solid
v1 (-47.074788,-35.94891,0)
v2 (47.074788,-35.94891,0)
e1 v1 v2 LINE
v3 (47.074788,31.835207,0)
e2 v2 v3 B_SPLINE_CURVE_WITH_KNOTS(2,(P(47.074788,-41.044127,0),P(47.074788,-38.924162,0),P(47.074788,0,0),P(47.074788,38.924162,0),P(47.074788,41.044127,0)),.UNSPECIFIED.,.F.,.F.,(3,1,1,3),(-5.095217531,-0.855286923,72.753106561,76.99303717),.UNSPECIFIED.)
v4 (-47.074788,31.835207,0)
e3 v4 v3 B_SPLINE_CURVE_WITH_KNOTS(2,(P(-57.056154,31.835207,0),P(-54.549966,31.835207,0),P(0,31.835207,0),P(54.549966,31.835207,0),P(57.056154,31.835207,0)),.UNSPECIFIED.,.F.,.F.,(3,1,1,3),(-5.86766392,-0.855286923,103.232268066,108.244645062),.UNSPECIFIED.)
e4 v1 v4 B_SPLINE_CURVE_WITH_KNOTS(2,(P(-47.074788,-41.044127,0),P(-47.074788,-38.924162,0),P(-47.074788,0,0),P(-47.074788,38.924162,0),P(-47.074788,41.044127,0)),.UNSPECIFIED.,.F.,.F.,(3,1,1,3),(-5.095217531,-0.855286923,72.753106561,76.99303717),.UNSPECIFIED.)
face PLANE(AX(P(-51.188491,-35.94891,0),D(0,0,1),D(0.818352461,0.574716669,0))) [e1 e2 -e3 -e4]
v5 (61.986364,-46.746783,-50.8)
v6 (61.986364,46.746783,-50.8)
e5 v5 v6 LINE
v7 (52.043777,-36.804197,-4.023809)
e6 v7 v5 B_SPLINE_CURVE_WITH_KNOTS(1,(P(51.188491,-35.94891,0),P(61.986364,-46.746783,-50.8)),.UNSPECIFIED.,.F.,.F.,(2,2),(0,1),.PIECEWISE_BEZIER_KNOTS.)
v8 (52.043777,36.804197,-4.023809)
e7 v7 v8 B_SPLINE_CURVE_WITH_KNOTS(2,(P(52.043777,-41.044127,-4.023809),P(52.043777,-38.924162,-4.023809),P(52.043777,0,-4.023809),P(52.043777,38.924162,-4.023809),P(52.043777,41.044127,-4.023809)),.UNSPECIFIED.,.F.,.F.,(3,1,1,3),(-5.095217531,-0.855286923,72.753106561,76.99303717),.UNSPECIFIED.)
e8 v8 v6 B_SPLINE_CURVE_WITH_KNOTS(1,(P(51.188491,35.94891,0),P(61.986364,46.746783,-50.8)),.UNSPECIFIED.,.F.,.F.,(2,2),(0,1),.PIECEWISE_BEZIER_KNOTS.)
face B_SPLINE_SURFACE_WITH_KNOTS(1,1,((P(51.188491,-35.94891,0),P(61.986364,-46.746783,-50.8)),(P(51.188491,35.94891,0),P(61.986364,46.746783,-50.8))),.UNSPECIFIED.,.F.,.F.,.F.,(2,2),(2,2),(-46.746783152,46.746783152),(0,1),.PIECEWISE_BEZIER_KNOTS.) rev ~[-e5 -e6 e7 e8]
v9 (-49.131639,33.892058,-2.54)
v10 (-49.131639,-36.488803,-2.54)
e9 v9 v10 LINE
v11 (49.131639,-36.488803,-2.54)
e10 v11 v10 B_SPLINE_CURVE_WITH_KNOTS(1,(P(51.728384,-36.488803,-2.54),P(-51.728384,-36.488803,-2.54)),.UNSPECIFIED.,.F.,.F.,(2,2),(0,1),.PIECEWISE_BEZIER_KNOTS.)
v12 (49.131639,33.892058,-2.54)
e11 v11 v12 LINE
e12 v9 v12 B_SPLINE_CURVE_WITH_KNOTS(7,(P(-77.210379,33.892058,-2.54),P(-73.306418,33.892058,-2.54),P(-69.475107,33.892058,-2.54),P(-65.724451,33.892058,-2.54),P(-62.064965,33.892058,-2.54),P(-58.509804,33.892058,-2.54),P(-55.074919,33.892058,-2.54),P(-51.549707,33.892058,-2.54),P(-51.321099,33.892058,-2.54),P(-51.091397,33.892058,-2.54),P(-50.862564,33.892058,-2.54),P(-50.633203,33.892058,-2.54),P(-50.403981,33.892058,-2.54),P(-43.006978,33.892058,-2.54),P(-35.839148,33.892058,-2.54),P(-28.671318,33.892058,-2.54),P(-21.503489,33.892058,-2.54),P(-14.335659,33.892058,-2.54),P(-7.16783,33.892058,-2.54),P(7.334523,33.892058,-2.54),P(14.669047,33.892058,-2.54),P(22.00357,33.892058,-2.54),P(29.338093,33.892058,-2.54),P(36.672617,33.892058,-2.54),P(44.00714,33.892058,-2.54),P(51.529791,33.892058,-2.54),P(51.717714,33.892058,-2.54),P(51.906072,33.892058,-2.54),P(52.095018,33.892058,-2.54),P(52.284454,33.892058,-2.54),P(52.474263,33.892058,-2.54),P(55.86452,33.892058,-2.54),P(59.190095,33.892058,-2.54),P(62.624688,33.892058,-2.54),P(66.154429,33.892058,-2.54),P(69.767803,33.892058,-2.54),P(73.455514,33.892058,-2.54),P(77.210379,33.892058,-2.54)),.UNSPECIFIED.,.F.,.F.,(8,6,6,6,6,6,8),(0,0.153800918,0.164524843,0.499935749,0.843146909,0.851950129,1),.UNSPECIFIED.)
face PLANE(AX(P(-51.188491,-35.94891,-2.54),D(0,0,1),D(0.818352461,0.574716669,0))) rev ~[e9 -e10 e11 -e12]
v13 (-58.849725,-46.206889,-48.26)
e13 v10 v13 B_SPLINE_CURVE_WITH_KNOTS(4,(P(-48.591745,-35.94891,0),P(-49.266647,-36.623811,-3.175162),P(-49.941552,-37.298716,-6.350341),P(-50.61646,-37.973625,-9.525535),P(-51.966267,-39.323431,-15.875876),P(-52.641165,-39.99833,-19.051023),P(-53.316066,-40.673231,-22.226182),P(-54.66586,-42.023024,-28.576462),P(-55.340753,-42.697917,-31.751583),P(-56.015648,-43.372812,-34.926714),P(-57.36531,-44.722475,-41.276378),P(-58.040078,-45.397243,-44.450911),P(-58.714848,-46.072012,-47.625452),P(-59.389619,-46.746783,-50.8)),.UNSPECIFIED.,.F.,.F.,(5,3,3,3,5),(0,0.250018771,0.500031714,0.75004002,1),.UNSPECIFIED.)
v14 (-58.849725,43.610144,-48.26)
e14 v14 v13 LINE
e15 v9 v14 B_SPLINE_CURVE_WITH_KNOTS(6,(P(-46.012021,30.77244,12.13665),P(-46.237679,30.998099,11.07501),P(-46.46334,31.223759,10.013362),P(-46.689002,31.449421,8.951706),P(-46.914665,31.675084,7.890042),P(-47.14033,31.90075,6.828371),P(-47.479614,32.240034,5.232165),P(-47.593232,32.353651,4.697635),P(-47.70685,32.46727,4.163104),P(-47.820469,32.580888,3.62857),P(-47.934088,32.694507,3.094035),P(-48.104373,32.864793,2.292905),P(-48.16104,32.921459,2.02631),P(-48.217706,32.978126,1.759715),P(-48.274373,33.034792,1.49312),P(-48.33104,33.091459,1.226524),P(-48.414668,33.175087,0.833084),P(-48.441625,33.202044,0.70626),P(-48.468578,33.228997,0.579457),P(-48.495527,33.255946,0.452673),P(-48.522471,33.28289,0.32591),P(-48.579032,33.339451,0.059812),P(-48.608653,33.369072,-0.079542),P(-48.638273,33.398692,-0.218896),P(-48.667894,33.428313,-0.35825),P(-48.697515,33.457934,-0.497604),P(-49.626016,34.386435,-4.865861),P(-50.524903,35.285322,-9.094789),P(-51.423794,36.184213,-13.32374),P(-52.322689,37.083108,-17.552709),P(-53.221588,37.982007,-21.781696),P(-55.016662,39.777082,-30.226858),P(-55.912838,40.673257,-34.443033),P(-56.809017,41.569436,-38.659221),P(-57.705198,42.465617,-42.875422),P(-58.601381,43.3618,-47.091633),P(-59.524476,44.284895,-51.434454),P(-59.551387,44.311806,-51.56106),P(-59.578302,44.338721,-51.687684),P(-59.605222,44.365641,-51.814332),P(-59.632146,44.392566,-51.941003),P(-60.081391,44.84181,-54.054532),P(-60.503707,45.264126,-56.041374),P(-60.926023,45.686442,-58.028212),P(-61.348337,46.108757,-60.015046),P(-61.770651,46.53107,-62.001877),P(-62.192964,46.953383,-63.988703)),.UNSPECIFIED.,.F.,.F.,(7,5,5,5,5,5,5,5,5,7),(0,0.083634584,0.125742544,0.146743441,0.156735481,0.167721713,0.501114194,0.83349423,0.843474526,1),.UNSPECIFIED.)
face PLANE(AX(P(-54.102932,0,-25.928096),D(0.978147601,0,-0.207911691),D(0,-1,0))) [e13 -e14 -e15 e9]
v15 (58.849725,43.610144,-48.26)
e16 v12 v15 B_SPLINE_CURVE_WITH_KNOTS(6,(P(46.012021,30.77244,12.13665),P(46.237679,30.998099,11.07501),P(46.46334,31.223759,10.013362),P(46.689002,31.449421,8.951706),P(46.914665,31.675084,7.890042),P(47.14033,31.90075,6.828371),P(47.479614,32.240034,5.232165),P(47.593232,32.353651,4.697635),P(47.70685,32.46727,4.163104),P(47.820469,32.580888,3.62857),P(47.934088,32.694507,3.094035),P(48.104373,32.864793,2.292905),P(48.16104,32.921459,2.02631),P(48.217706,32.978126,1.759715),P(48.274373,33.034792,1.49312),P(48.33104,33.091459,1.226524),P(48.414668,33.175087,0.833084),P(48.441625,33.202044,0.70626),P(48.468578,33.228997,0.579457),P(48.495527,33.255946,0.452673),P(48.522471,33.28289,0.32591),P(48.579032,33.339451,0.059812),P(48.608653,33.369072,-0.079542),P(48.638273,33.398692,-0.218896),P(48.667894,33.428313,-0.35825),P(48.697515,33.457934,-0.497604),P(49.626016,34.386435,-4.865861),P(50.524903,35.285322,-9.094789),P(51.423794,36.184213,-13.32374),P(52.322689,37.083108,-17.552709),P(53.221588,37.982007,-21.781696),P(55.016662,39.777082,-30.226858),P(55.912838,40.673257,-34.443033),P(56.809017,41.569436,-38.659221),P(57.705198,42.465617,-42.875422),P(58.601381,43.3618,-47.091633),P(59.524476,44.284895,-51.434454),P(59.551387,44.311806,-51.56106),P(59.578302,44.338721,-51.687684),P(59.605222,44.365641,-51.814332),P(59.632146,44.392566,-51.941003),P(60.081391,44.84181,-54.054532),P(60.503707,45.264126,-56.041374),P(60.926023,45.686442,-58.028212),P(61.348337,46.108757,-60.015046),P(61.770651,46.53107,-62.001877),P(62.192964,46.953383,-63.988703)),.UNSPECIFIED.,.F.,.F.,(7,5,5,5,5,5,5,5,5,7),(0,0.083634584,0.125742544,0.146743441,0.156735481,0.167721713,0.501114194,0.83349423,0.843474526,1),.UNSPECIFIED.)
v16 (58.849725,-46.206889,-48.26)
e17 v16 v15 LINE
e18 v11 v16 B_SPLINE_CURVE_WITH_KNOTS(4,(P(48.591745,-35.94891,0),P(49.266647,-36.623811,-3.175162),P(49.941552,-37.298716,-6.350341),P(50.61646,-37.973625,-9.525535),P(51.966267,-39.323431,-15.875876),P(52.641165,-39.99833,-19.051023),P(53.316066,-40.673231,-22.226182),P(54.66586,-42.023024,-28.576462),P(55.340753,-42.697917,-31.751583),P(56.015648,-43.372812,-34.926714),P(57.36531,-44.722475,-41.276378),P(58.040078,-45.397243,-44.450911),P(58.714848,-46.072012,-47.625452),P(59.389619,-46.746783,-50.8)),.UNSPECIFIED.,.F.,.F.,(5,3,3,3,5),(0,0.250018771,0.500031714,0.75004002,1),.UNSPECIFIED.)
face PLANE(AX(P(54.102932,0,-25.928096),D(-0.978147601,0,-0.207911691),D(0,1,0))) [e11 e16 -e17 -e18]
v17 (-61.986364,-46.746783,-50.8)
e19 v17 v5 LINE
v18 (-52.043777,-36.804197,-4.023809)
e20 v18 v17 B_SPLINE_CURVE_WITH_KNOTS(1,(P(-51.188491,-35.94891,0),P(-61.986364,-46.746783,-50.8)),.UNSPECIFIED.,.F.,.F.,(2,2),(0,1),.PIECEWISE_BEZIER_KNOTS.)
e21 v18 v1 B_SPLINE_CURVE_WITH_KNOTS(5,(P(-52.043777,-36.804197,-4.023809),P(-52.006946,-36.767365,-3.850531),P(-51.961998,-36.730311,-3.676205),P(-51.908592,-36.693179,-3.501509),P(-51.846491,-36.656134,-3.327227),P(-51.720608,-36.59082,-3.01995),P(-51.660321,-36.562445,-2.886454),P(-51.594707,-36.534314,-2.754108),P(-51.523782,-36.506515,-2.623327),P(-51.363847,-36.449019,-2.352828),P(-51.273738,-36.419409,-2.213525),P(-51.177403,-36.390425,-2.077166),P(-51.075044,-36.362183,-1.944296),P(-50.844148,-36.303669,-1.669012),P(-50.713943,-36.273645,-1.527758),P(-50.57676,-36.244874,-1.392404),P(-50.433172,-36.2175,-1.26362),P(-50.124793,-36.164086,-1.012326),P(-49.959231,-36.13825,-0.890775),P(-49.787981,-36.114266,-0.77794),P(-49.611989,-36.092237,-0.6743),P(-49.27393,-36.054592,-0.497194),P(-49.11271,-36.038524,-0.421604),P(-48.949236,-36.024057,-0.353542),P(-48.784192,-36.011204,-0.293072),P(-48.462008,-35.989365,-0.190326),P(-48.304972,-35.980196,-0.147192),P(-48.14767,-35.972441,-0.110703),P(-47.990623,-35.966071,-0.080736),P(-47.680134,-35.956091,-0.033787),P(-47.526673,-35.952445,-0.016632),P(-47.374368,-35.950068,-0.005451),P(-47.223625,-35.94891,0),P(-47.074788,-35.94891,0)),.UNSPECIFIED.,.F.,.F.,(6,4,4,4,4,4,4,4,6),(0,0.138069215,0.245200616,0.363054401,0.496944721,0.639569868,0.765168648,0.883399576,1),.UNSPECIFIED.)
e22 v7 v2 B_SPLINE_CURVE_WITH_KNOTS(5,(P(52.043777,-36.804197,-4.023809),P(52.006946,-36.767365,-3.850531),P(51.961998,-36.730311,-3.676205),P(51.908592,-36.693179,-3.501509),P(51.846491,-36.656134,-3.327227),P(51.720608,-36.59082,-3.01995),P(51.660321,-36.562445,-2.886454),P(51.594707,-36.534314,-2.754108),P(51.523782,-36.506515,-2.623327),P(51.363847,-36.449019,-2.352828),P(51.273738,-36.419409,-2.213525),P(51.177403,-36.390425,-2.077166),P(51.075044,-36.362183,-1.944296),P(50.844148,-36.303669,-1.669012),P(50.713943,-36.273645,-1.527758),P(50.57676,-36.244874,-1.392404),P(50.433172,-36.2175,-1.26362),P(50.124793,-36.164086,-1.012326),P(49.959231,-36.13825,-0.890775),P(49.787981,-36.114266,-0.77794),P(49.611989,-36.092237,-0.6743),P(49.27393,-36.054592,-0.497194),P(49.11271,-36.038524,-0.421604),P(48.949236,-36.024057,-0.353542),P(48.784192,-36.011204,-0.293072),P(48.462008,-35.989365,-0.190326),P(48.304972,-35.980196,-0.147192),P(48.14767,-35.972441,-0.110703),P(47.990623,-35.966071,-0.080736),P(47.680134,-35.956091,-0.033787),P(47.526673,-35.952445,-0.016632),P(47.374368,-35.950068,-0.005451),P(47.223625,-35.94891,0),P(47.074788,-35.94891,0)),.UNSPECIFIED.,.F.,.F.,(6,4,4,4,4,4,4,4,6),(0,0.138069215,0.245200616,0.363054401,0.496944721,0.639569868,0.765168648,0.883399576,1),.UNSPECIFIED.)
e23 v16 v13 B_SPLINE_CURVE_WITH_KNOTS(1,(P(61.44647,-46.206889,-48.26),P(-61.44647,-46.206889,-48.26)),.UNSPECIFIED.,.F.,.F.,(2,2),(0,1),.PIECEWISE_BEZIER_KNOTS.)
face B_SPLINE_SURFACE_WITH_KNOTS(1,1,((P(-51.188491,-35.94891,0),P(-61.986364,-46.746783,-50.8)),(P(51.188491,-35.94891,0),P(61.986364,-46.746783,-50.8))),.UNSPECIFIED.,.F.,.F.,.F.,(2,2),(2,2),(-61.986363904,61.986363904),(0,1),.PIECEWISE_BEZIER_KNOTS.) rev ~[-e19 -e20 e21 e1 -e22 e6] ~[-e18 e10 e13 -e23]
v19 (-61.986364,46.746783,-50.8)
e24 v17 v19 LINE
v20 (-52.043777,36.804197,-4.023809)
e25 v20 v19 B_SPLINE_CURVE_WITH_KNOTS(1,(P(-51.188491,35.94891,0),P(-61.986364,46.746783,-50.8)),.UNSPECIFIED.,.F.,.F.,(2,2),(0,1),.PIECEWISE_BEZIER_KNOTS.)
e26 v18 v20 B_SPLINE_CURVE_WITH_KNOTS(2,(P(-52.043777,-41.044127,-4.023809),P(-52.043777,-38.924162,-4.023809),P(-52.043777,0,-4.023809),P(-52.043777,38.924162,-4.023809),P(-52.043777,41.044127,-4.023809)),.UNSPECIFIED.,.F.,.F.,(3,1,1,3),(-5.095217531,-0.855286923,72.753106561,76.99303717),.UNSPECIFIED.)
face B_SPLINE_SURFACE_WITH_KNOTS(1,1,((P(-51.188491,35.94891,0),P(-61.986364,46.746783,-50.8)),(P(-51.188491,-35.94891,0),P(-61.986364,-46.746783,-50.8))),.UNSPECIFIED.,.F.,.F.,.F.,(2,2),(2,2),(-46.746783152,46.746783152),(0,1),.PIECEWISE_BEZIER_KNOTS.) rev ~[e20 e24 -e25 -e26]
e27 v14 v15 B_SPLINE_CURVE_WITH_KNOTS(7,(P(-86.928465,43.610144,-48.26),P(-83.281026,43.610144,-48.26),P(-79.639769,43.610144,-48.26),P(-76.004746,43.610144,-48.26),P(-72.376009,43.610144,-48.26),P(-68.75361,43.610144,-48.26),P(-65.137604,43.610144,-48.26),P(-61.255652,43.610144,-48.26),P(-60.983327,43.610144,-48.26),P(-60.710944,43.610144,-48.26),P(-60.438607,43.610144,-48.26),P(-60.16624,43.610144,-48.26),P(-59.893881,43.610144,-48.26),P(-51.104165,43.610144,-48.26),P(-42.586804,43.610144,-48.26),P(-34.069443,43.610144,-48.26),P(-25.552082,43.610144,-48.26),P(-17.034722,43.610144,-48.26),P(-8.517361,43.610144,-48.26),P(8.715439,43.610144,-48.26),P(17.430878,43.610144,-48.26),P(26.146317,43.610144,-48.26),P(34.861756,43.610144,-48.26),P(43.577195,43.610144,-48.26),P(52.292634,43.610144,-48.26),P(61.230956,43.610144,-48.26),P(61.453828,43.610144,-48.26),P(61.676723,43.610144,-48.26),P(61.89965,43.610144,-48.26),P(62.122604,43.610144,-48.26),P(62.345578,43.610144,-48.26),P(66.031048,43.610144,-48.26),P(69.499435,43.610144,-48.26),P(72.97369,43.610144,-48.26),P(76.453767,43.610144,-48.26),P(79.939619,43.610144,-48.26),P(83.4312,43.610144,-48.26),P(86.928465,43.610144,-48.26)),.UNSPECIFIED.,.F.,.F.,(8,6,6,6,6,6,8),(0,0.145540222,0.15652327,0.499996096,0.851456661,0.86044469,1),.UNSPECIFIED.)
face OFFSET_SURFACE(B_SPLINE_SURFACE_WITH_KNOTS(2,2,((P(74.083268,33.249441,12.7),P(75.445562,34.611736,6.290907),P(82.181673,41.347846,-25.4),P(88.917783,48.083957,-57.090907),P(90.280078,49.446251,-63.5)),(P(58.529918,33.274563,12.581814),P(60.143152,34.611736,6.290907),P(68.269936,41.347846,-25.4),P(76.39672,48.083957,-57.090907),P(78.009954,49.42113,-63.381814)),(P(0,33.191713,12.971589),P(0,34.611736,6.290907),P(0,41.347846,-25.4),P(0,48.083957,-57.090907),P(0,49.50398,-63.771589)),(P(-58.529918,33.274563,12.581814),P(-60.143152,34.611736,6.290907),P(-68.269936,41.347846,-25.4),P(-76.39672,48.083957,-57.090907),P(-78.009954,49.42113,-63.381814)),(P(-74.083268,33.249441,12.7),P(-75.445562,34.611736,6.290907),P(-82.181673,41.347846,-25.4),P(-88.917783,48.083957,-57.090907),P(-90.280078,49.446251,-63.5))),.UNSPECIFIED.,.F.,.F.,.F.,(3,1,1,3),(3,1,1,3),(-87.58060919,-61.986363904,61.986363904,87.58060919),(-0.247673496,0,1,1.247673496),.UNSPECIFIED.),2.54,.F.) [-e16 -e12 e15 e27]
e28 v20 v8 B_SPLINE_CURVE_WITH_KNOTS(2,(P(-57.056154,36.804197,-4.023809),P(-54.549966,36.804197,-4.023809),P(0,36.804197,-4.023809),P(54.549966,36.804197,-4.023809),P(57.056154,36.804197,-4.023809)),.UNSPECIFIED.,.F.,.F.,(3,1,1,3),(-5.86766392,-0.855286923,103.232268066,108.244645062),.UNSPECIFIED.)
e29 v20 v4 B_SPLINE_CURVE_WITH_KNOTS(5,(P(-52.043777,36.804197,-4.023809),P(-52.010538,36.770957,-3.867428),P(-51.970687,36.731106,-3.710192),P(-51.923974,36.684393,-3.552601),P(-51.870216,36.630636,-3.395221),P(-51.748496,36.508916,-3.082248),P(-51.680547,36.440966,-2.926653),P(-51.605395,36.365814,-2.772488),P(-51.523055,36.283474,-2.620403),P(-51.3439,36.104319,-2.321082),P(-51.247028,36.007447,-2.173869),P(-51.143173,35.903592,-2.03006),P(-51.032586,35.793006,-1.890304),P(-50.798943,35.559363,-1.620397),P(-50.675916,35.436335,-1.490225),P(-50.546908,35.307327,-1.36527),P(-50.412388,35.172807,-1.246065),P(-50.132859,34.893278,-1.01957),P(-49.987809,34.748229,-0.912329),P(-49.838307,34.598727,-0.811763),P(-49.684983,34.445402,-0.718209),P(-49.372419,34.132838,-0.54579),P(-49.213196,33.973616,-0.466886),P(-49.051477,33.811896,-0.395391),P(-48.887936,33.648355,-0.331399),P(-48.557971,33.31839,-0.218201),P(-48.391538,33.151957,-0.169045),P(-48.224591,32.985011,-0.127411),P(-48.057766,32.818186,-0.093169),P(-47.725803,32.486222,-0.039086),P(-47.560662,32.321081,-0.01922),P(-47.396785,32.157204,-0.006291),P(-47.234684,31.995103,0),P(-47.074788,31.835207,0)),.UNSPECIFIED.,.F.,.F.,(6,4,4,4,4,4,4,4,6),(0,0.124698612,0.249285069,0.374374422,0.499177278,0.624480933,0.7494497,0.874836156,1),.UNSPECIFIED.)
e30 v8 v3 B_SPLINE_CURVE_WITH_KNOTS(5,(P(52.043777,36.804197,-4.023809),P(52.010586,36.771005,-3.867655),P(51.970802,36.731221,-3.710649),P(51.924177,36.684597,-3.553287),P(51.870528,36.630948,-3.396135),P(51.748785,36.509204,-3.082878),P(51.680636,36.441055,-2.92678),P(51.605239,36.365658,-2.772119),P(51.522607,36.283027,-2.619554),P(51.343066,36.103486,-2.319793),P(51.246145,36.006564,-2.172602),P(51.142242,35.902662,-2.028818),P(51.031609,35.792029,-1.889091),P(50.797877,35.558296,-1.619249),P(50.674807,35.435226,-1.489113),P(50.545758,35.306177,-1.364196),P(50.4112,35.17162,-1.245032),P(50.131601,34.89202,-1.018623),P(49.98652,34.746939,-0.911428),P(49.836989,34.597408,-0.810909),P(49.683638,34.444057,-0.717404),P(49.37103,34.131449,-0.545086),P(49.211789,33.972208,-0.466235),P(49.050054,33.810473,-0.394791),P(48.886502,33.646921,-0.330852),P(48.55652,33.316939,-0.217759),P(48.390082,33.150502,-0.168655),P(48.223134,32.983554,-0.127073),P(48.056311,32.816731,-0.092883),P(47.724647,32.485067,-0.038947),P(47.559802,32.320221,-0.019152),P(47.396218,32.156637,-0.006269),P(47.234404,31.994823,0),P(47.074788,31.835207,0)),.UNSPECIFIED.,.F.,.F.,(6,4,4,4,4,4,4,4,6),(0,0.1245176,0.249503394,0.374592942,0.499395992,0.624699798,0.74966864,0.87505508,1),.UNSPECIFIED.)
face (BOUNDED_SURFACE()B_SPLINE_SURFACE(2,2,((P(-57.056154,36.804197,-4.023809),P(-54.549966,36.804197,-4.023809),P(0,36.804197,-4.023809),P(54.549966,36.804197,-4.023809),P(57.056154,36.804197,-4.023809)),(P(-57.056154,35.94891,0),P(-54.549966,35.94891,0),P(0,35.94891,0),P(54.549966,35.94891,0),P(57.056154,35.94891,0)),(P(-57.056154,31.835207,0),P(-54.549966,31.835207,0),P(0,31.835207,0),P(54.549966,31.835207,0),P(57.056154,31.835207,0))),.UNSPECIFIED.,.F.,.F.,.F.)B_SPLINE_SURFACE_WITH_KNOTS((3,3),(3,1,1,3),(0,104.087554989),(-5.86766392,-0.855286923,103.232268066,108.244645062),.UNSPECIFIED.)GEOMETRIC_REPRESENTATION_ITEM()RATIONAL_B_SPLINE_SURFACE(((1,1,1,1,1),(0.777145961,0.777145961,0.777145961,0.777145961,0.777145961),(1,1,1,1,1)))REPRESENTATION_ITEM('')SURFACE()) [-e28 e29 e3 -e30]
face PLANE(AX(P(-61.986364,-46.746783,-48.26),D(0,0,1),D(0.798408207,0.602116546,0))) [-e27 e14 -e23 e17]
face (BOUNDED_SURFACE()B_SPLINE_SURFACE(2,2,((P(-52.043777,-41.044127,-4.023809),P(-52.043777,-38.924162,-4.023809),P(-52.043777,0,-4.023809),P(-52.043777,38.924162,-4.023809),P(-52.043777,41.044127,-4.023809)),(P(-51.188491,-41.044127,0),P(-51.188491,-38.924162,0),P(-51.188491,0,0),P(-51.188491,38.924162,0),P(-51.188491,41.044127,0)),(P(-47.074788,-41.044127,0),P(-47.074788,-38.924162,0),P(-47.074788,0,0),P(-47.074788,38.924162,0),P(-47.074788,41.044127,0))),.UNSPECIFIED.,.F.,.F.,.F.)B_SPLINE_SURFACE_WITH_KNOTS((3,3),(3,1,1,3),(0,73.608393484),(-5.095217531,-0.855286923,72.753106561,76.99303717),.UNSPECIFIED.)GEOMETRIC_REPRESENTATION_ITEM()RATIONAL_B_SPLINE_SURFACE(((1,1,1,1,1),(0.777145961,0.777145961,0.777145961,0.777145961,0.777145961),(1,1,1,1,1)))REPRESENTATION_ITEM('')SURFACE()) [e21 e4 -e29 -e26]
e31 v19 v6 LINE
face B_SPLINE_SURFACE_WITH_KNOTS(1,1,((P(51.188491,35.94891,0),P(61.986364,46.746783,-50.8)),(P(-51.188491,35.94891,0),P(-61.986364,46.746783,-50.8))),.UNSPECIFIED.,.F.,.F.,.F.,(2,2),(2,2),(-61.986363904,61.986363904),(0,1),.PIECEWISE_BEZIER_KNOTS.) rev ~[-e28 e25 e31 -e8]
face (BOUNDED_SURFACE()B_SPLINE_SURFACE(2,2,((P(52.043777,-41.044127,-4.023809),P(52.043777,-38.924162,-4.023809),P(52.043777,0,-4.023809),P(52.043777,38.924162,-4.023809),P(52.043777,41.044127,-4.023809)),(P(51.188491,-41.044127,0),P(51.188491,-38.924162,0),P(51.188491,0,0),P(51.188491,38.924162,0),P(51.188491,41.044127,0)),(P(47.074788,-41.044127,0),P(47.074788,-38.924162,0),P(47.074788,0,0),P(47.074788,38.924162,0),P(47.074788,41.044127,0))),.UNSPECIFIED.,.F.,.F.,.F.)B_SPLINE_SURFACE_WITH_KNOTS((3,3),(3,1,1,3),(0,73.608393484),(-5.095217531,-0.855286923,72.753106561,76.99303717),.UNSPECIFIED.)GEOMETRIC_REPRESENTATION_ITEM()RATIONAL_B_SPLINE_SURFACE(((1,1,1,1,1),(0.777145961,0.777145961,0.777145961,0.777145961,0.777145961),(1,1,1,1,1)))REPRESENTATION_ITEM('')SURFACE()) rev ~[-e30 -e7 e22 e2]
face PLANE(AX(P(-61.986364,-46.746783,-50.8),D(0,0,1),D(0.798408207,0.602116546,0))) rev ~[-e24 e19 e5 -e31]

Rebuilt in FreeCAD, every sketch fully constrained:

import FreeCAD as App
import Part
import Sketcher
from FreeCAD import Vector
Q = App.Units.Quantity


def edges_at(feature, points):
    """Names of the edges that pass closest to the given points."""
    edges = feature.Shape.Edges
    near = lambda p: min(range(len(edges)), key=lambda i: edges[i].distToShape(Part.Vertex(*p))[0])
    return sorted({f"Edge{near(p) + 1}" for p in points})


def faces_at(feature, points):
    """Names of the faces that lie closest to the given points."""
    faces = feature.Shape.Faces
    near = lambda p: min(range(len(faces)), key=lambda i: faces[i].distToShape(Part.Vertex(*p))[0])
    return sorted({f"Face{near(p) + 1}" for p in points})


def add_polygon(sketch, points):
    """Adds a closed chain of lines whose ends are joined by coincident constraints."""
    first, n = sketch.GeometryCount, len(points)
    for a, b in zip(points, points[1:] + points[:1]):
        sketch.addGeometry(Part.LineSegment(App.Vector(*a, 0), App.Vector(*b, 0)), False)
    for i in range(n):
        sketch.addConstraint(Sketcher.Constraint("Coincident", first + i, 2, first + (i + 1) % n, 1))

doc = App.newDocument("Part")
body = doc.addObject("PartDesign::Body", "Body")

sketch1 = doc.addObject("Sketcher::SketchObject", "Sketch")
body.addObject(sketch1)
sketch1.AttachmentSupport = (doc.XY_Plane, [""])
sketch1.MapMode = "FlatFace"
add_polygon(sketch1, [(-51.188491, 35.94891), (-51.188491, -35.94891), (51.188491, -35.94891), (51.188491, 35.94891)])
sketch1.addConstraint([
    Sketcher.Constraint("Vertical", 0),
    Sketcher.Constraint("Horizontal", 1),
    Sketcher.Constraint("Vertical", 2),
    Sketcher.Constraint("Horizontal", 3),
    Sketcher.Constraint("Symmetric", 0, 2, 2, 2, -1, 1),
    Sketcher.Constraint("DistanceX", 1, 1, 1, 2, 102.376981),
    Sketcher.Constraint("DistanceY", 0, 2, 0, 1, 71.89782),
])
pad1 = doc.addObject("PartDesign::Pad", "Pad")
body.addObject(pad1)
pad1.Profile = sketch1
pad1.Length = Q("2 in")
pad1.Reversed = True
pad1.TaperAngle = 12
doc.recompute()

thickness = doc.addObject("PartDesign::Thickness", "Thickness")
body.addObject(thickness)
thickness.Base = (pad1, faces_at(pad1, [(0, -41.348, -25.4)]))
thickness.Value = Q("0.1 in")
thickness.Reversed = True
thickness.Join = "Intersection"
doc.recompute()

fillet = doc.addObject("PartDesign::Fillet", "Fillet")
body.addObject(fillet)
fillet.Base = (thickness, edges_at(thickness, [(51.188, 0, 0), (-51.188, 0, 0), (0, 35.949, 0)]))
fillet.Radius = Q("0.2 in")

doc.recompute()
